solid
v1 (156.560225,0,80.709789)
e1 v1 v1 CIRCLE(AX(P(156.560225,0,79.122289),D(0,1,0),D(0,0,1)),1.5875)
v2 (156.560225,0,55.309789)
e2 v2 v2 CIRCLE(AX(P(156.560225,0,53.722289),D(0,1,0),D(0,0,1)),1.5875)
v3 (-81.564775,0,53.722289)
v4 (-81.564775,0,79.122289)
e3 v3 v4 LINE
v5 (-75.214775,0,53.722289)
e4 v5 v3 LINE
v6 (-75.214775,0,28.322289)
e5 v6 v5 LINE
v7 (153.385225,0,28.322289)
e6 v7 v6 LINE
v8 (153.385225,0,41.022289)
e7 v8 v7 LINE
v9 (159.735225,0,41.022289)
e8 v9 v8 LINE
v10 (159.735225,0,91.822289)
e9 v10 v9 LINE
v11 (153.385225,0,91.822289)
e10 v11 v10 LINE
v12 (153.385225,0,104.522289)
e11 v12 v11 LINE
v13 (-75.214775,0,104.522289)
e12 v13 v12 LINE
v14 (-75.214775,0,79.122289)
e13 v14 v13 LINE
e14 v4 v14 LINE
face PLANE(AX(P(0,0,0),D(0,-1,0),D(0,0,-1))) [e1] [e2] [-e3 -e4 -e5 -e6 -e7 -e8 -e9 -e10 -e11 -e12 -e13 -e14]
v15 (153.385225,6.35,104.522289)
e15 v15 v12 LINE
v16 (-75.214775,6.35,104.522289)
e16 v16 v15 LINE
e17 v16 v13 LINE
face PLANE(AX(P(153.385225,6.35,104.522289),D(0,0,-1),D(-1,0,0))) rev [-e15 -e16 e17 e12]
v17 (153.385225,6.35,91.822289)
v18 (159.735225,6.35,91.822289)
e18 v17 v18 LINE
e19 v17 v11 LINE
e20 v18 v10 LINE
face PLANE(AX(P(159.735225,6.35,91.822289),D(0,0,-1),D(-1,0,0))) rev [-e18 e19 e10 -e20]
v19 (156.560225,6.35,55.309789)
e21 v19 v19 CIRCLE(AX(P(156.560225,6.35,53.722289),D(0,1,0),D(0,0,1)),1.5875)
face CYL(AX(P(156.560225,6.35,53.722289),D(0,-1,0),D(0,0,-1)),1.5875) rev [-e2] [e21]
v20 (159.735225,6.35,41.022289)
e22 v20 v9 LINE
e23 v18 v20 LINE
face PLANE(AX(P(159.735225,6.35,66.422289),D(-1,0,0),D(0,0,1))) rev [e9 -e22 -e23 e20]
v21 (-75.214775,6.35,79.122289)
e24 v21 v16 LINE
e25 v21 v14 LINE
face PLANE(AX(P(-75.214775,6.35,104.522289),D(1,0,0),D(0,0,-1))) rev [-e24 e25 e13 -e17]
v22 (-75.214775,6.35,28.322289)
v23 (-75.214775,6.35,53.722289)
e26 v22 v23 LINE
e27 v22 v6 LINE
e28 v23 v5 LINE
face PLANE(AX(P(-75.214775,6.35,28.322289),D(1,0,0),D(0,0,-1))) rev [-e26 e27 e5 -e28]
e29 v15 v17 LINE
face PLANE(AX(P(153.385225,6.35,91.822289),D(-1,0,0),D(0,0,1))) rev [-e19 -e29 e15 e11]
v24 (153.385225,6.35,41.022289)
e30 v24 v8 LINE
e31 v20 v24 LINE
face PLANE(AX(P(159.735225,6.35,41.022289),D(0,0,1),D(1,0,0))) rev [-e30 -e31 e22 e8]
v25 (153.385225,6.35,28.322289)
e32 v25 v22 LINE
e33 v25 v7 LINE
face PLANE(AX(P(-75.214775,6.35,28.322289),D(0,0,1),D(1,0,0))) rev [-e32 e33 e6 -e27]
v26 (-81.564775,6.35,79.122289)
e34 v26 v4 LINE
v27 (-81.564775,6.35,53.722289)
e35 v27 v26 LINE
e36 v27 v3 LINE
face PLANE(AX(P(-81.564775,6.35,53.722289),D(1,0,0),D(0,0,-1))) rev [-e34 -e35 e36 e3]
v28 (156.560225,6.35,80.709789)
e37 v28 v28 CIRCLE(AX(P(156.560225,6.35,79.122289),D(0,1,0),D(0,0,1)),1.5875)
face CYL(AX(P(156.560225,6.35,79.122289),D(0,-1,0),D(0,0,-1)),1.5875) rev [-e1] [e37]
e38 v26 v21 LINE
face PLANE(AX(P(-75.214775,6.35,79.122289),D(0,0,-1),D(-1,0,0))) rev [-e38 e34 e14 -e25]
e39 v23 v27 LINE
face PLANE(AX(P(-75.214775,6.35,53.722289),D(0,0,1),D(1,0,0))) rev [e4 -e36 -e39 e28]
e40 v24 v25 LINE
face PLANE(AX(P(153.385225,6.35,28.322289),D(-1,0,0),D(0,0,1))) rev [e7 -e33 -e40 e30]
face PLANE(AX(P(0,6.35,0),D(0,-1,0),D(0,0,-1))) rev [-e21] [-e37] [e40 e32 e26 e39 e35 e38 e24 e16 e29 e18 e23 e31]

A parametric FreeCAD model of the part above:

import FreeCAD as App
import Part
import Sketcher

V = App.Vector
Q = App.Units.Quantity


def add_polygon(sketch, points):
    """Adds a closed chain of lines whose ends are joined by coincident constraints."""
    first, n = sketch.GeometryCount, len(points)
    for a, b in zip(points, points[1:] + points[:1]):
        sketch.addGeometry(Part.LineSegment(App.Vector(*a, 0), App.Vector(*b, 0)), False)
    for i in range(n):
        sketch.addConstraint(Sketcher.Constraint("Coincident", first + i, 2, first + (i + 1) % n, 1))

doc = App.newDocument("Part")
params = doc.addObject("Spreadsheet::Sheet", "Params")
for row, (alias, value) in enumerate([
    ("sketch1_width", "9 in"),
    ("sketch1_height", "1 in"),
    ("sketch1_height2", "2 in"),
    ("sketch1_diameter", "0.125 in"),
    ("sketch1_width2", "0.25 in"),
    ("pad1_length", "0.25 in"),
], start=1):
    params.set(f"A{row}", alias)
    params.set(f"B{row}", "=" + value)
    params.setAlias(f"B{row}", alias)

body = doc.addObject("PartDesign::Body", "Body")

sketch1 = body.newObject("Sketcher::SketchObject", "Sketch")
sketch1.AttachmentSupport = (doc.getObject("XZ_Plane"), [""])
sketch1.MapMode = "FlatFace"
add_polygon(sketch1, [(153.385225, 28.322289), (-75.214775, 28.322289), (-75.214775, 53.722289), (-81.564775, 53.722289), (-81.564775, 79.122289), (-75.214775, 79.122289), (-75.214775, 104.522289), (153.385225, 104.522289), (153.385225, 91.822289), (159.735225, 91.822289), (159.735225, 41.022289), (153.385225, 41.022289)])
sketch1.addGeometry(Part.Circle(V(156.560225, 79.122289, 0), V(0, 0, 1), 1.5875), False)
sketch1.addGeometry(Part.Circle(V(156.560225, 53.722289, 0), V(0, 0, 1), 1.5875), False)
sketch1.addConstraint(Sketcher.Constraint("Horizontal", 0))
sketch1.addConstraint(Sketcher.Constraint("Vertical", 1))
sketch1.addConstraint(Sketcher.Constraint("Horizontal", 2))
sketch1.addConstraint(Sketcher.Constraint("Vertical", 3))
sketch1.addConstraint(Sketcher.Constraint("Horizontal", 4))
sketch1.addConstraint(Sketcher.Constraint("Vertical", 5))
sketch1.addConstraint(Sketcher.Constraint("Horizontal", 6))
sketch1.addConstraint(Sketcher.Constraint("Vertical", 7))
sketch1.addConstraint(Sketcher.Constraint("Horizontal", 8))
sketch1.addConstraint(Sketcher.Constraint("Vertical", 9))
sketch1.addConstraint(Sketcher.Constraint("Horizontal", 10))
sketch1.addConstraint(Sketcher.Constraint("Vertical", 11))
sketch1.addConstraint(Sketcher.Constraint("Equal", 12, 13))
sketch1.addConstraint(Sketcher.Constraint("Horizontal", 13, 3, 1, 2))
sketch1.addConstraint(Sketcher.Constraint("Horizontal", 12, 3, 3, 2))
sketch1.addConstraint(Sketcher.Constraint("Vertical", 12, 3, 13, 3))
sketch1.addConstraint(Sketcher.Constraint("Vertical", 1, 2, 4, 2))
sketch1.addConstraint(Sketcher.Constraint("Vertical", 7, 2, 10, 2))
sketch1.addConstraint(Sketcher.Constraint("Equal", 4, 8))
sketch1.addConstraint(Sketcher.Constraint("Equal", 1, 3))
sketch1.addConstraint(Sketcher.Constraint("Equal", 3, 5))
sketch1.addConstraint(Sketcher.Constraint("Equal", 7, 11))
sketch1.addConstraint(Sketcher.Constraint("DistanceX", 0, 2, 0, 1, Q("9 in")))
sketch1.addConstraint(Sketcher.Constraint("DistanceY", 1, 1, 1, 2, Q("1 in")))
sketch1.addConstraint(Sketcher.Constraint("DistanceY", 9, 2, 9, 1, Q("2 in")))
sketch1.addConstraint(Sketcher.Constraint("Diameter", 12, Q("0.125 in")))
sketch1.addConstraint(Sketcher.Constraint("DistanceX", 2, 2, 2, 1, Q("0.25 in")))
sketch1.addConstraint(Sketcher.Constraint("DistanceX", 0, 2, 13, 3, Q("9.125 in")))
sketch1.addConstraint(Sketcher.Constraint("DistanceY", -1, 1, 12, 3, Q("79.122289 mm")))
sketch1.addConstraint(Sketcher.Constraint("DistanceX", -1, 1, 12, 3, Q("156.560225 mm")))
sketch1.setExpression("Constraints[34]", "Params.sketch1_width")
sketch1.setExpression("Constraints[35]", "Params.sketch1_height")
sketch1.setExpression("Constraints[36]", "Params.sketch1_height2")
sketch1.setExpression("Constraints[37]", "Params.sketch1_diameter")
sketch1.setExpression("Constraints[38]", "Params.sketch1_width2")
pad1 = body.newObject("PartDesign::Pad", "Pad")
pad1.Profile = sketch1
pad1.setExpression("Length", "Params.pad1_length")
pad1.Reversed = True

doc.recompute()
